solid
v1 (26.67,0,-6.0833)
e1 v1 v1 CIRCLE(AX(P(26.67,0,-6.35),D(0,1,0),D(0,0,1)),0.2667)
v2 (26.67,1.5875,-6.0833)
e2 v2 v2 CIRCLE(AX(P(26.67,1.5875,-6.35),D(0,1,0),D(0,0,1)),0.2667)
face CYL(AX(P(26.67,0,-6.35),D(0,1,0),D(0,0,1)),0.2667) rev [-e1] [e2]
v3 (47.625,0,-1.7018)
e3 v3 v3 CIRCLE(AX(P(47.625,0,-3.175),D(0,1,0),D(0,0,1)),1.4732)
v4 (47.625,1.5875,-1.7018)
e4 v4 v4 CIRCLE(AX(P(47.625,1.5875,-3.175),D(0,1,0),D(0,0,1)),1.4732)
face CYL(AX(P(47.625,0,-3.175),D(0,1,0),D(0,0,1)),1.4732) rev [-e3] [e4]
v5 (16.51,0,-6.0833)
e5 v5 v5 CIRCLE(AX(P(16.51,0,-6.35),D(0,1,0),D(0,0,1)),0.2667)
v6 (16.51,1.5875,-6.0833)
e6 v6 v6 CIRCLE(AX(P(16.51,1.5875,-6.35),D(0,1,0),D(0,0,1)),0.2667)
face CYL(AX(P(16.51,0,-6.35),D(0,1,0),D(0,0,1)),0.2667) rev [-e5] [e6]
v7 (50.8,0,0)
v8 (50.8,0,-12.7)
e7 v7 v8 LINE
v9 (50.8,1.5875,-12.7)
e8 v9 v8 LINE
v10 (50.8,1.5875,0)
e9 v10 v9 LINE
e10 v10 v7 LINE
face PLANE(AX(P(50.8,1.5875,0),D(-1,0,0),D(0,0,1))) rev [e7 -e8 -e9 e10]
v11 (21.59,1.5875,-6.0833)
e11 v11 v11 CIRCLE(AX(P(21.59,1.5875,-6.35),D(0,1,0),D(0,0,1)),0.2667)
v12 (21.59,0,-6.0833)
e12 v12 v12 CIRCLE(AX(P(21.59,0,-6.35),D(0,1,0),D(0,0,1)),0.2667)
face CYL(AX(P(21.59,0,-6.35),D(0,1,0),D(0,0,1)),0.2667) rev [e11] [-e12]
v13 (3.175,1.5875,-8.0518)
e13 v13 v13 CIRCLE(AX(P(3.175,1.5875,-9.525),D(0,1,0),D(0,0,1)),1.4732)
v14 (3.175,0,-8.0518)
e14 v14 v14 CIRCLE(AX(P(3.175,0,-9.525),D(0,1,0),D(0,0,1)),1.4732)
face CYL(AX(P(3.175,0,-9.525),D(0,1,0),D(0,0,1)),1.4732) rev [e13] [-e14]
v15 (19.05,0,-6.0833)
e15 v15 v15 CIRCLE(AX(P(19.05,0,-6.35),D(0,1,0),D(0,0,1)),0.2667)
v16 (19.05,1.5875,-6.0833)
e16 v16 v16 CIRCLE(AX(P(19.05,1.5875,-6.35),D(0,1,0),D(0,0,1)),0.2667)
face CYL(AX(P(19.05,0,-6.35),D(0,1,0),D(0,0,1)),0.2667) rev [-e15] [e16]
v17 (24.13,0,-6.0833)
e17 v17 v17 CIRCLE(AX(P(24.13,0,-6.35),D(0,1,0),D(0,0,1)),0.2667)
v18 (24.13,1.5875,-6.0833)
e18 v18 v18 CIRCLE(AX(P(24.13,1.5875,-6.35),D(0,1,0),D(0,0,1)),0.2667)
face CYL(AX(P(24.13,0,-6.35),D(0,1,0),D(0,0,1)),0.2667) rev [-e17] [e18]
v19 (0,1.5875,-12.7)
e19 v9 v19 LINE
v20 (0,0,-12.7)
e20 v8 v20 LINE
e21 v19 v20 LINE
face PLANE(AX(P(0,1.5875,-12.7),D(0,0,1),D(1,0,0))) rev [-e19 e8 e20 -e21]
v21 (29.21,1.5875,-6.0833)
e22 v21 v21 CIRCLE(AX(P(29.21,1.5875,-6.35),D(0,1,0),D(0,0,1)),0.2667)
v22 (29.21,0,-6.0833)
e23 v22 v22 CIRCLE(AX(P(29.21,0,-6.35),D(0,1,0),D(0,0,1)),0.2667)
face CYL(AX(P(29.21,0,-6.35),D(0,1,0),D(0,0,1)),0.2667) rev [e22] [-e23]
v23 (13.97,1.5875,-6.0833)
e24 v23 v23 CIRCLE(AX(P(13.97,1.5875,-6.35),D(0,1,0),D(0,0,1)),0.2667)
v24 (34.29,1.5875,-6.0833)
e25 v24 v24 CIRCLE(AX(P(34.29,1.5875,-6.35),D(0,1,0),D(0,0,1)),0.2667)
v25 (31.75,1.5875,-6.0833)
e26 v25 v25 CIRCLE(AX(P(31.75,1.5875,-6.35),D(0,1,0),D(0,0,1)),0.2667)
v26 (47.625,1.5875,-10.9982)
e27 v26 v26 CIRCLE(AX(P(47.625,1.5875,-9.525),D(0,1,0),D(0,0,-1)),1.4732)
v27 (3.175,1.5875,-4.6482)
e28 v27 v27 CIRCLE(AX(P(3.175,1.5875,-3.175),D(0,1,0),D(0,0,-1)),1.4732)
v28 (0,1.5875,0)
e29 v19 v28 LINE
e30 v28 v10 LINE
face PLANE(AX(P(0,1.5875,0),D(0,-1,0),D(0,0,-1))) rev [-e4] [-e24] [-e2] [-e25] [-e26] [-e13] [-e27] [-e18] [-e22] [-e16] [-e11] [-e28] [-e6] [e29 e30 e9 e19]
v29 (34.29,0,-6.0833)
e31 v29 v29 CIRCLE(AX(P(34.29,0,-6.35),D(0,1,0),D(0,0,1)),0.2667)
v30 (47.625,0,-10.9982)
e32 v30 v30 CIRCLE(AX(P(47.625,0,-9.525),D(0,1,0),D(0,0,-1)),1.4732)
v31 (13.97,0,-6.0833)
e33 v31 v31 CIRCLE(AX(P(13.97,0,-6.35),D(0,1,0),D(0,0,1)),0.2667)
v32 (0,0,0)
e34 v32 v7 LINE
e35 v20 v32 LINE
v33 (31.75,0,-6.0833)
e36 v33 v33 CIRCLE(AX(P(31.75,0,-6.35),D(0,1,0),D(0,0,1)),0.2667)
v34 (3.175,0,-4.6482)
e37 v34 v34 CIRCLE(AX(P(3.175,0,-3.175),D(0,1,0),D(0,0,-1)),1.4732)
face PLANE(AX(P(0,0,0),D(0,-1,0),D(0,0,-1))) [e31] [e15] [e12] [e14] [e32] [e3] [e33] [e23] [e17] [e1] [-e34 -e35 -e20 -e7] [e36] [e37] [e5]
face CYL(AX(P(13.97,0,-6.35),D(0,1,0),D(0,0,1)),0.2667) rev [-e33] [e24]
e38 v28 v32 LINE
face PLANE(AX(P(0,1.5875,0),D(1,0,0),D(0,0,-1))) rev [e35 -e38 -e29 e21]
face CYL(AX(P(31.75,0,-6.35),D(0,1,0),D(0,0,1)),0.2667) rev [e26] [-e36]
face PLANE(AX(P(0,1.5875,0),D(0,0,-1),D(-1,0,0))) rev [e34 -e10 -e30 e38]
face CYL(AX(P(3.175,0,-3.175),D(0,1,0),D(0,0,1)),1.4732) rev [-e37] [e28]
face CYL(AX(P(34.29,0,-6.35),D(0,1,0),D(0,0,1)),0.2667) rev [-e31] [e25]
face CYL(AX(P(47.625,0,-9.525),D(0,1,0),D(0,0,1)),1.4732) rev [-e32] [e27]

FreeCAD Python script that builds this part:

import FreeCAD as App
import Part
import Sketcher
from FreeCAD import Vector
Q = App.Units.Quantity


def add_polygon(sketch, points):
    """Adds a closed chain of lines whose ends are joined by coincident constraints."""
    first, n = sketch.GeometryCount, len(points)
    for a, b in zip(points, points[1:] + points[:1]):
        sketch.addGeometry(Part.LineSegment(App.Vector(*a, 0), App.Vector(*b, 0)), False)
    for i in range(n):
        sketch.addConstraint(Sketcher.Constraint("Coincident", first + i, 2, first + (i + 1) % n, 1))

doc = App.newDocument("Part")
params = doc.addObject("Spreadsheet::Sheet", "Params")
for row, (alias, value) in enumerate([
    ("sketch1_width", "2 in"),
    ("sketch1_height", "0.5 in"),
    ("pad1_length", "0.0625 in"),
    ("sketch2_diameter", "0.116 in"),
    ("pocket1_length", "0.0625 in"),
    ("sketch3_diameter", "0.021 in"),
    ("pocket2_length", "0.0625 in"),
], start=1):
    params.set(f"A{row}", alias)
    params.set(f"B{row}", "=" + value)
    params.setAlias(f"B{row}", alias)

body = doc.addObject("PartDesign::Body", "Body")

# Sketch on XZ plane
sketch1 = doc.addObject("Sketcher::SketchObject", "Sketch")
body.addObject(sketch1)
sketch1.AttachmentSupport = (doc.XZ_Plane, [""])
sketch1.MapMode = "FlatFace"
add_polygon(sketch1, [(0, -13), (0, 0), (51, 0), (51, -13)])  # lines 0-3
sketch1.addConstraint([
    Sketcher.Constraint("Vertical", 0),
    Sketcher.Constraint("Horizontal", 1),
    Sketcher.Constraint("Vertical", 2),
    Sketcher.Constraint("Horizontal", 3),
    Sketcher.Constraint("Coincident", 0, 2, -1, 1),
    Sketcher.Constraint("DistanceX", 1, 1, 1, 2, Q("2 in")),
    Sketcher.Constraint("DistanceY", 0, 1, 0, 2, Q("0.5 in")),
])
sketch1.setExpression("Constraints[9]", "Params.sketch1_width")
sketch1.setExpression("Constraints[10]", "Params.sketch1_height")
pad1 = doc.addObject("PartDesign::Pad", "Pad")
body.addObject(pad1)
pad1.Profile = sketch1
pad1.setExpression("Length", "Params.pad1_length")
pad1.Reversed = True

# Sketch on XZ plane
sketch2 = doc.addObject("Sketcher::SketchObject", "Sketch001")
body.addObject(sketch2)
sketch2.AttachmentSupport = (doc.XZ_Plane, [""])
sketch2.MapMode = "FlatFace"
sketch2.AttachmentOffset = App.Placement(Vector(0, 0, -0.0625 * 25.4), App.Rotation())
sketch2.addGeometry([
    Part.Circle(Vector(3.2, -9.5, 0), Vector(0, 0, 1), 1.5),
    Part.Circle(Vector(3.2, -3.2, 0), Vector(0, 0, 1), 1.5),
    Part.Circle(Vector(47.6, -9.5, 0), Vector(0, 0, 1), 1.5),
    Part.Circle(Vector(47.6, -3.2, 0), Vector(0, 0, 1), 1.5),
], False)
sketch2.addConstraint([
    Sketcher.Constraint("Equal", 0, 1),
    Sketcher.Constraint("Equal", 1, 2),
    Sketcher.Constraint("Equal", 2, 3),
    Sketcher.Constraint("Horizontal", 0, 3, 2, 3),
    Sketcher.Constraint("Horizontal", 1, 3, 3, 3),
    Sketcher.Constraint("Vertical", 0, 3, 1, 3),
    Sketcher.Constraint("Vertical", 2, 3, 3, 3),
    Sketcher.Constraint("Diameter", 0, Q("0.116 in")),
    Sketcher.Constraint("DistanceY", 0, 3, 1, 3, Q("0.25 in")),
    Sketcher.Constraint("DistanceX", 0, 3, 2, 3, Q("1.75 in")),
    Sketcher.Constraint("DistanceX", -1, 1, 0, 3, Q("0.125 in")),
    Sketcher.Constraint("DistanceY", 0, 3, -1, 1, Q("0.375 in")),
])
sketch2.setExpression("Constraints[7]", "Params.sketch2_diameter")
pocket1 = doc.addObject("PartDesign::Pocket", "Pocket")
body.addObject(pocket1)
pocket1.Profile = sketch2
pocket1.setExpression("Length", "Params.pocket1_length")
pocket1.Reversed = True

# Sketch on XZ plane
sketch3 = doc.addObject("Sketcher::SketchObject", "Sketch002")
body.addObject(sketch3)
sketch3.AttachmentSupport = (doc.XZ_Plane, [""])
sketch3.MapMode = "FlatFace"
sketch3.AttachmentOffset = App.Placement(Vector(0, 0, -0.0625 * 25.4), App.Rotation())
sketch3.addGeometry([
    Part.Circle(Vector(24.13, -6.35, 0), Vector(0, 0, 1), 0.27),  # 0
    Part.Circle(Vector(21.59, -6.35, 0), Vector(0, 0, 1), 0.27),  # 1
    Part.Circle(Vector(19.05, -6.35, 0), Vector(0, 0, 1), 0.27),  # 2
    Part.Circle(Vector(16.51, -6.35, 0), Vector(0, 0, 1), 0.27),  # 3
    Part.Circle(Vector(13.97, -6.35, 0), Vector(0, 0, 1), 0.27),  # 4
    Part.Circle(Vector(26.67, -6.35, 0), Vector(0, 0, 1), 0.27),  # 5
    Part.Circle(Vector(29.21, -6.35, 0), Vector(0, 0, 1), 0.27),  # 6
    Part.Circle(Vector(31.75, -6.35, 0), Vector(0, 0, 1), 0.27),  # 7
    Part.Circle(Vector(34.29, -6.35, 0), Vector(0, 0, 1), 0.27),  # 8
], False)
sketch3.addConstraint([
    Sketcher.Constraint("Equal", 0, 1),
    Sketcher.Constraint("Equal", 1, 2),
    Sketcher.Constraint("Equal", 2, 3),
    Sketcher.Constraint("Equal", 3, 4),
    Sketcher.Constraint("Equal", 4, 5),
    Sketcher.Constraint("Equal", 5, 6),
    Sketcher.Constraint("Equal", 6, 7),
    Sketcher.Constraint("Equal", 7, 8),
    Sketcher.Constraint("Horizontal", 0, 3, 1, 3),
    Sketcher.Constraint("Horizontal", 1, 3, 2, 3),
    Sketcher.Constraint("Horizontal", 2, 3, 3, 3),
    Sketcher.Constraint("Horizontal", 3, 3, 4, 3),
    Sketcher.Constraint("Horizontal", 4, 3, 5, 3),
    Sketcher.Constraint("Horizontal", 5, 3, 6, 3),
    Sketcher.Constraint("Horizontal", 6, 3, 7, 3),
    Sketcher.Constraint("Horizontal", 7, 3, 8, 3),
    Sketcher.Constraint("Diameter", 0, Q("0.021 in")),
    Sketcher.Constraint("DistanceX", 1, 3, 0, 3, Q("0.1 in")),
    Sketcher.Constraint("DistanceX", 2, 3, 1, 3, Q("0.1 in")),
    Sketcher.Constraint("DistanceX", 3, 3, 2, 3, Q("0.1 in")),
    Sketcher.Constraint("DistanceX", 4, 3, 3, 3, Q("0.1 in")),
    Sketcher.Constraint("DistanceX", 0, 3, 5, 3, Q("0.1 in")),
    Sketcher.Constraint("DistanceX", 5, 3, 6, 3, Q("0.1 in")),
    Sketcher.Constraint("DistanceX", 6, 3, 7, 3, Q("0.1 in")),
    Sketcher.Constraint("DistanceX", 7, 3, 8, 3, Q("0.1 in")),
    Sketcher.Constraint("DistanceX", -1, 1, 0, 3, Q("0.95 in")),
    Sketcher.Constraint("DistanceY", 0, 3, -1, 1, Q("0.25 in")),
])
sketch3.setExpression("Constraints[16]", "Params.sketch3_diameter")
pocket2 = doc.addObject("PartDesign::Pocket", "Pocket001")
body.addObject(pocket2)
pocket2.Profile = sketch3
pocket2.setExpression("Length", "Params.pocket2_length")
pocket2.Reversed = True

doc.recompute()
